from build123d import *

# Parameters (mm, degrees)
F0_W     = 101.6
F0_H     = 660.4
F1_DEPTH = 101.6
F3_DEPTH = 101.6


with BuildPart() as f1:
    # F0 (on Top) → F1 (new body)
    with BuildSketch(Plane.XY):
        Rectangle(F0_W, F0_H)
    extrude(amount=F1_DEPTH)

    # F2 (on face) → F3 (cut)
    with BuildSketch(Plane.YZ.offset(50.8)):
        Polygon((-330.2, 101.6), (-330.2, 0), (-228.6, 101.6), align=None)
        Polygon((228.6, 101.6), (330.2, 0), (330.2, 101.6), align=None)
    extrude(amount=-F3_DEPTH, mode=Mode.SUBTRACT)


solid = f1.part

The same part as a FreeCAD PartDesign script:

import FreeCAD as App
import Part
import Sketcher
Q = App.Units.Quantity


def add_polygon(sketch, points):
    """Adds a closed chain of lines whose ends are joined by coincident constraints."""
    first, n = sketch.GeometryCount, len(points)
    for a, b in zip(points, points[1:] + points[:1]):
        sketch.addGeometry(Part.LineSegment(App.Vector(*a, 0), App.Vector(*b, 0)), False)
    for i in range(n):
        sketch.addConstraint(Sketcher.Constraint("Coincident", first + i, 2, first + (i + 1) % n, 1))

doc = App.newDocument("Part")
body = doc.addObject("PartDesign::Body", "Body")

# Sketch on XY plane
sketch1 = body.newObject("Sketcher::SketchObject", "Sketch")
sketch1.AttachmentSupport = (doc.getObject("XY_Plane"), [""])
sketch1.MapMode = "FlatFace"
add_polygon(sketch1, [(-50.8, 330.2), (-50.8, -330.2), (50.8, -330.2), (50.8, 330.2)])  # lines 0-3
sketch1.addConstraint([
    Sketcher.Constraint("Vertical", 0),
    Sketcher.Constraint("Horizontal", 1),
    Sketcher.Constraint("Vertical", 2),
    Sketcher.Constraint("Horizontal", 3),
    Sketcher.Constraint("Symmetric", 0, 2, 2, 2, -1, 1),
    Sketcher.Constraint("DistanceX", 1, 1, 1, 2, Q("4 in")),
    Sketcher.Constraint("DistanceY", 0, 2, 0, 1, Q("26 in")),
])
pad1 = body.newObject("PartDesign::Pad", "Pad")
pad1.Profile = sketch1
pad1.Length = Q("4 in")

# Sketch on YZ plane
sketch2 = body.newObject("Sketcher::SketchObject", "Sketch001")
sketch2.AttachmentSupport = (doc.getObject("YZ_Plane"), [""])
sketch2.MapMode = "FlatFace"
sketch2.AttachmentOffset = App.Placement(App.Vector(0, 0, 2 * 25.4), App.Rotation())
add_polygon(sketch2, [(-330.2, 101.6), (-330.2, 0), (-228.6, 101.6)])  # lines 0-2
add_polygon(sketch2, [(228.6, 101.6), (330.2, 0), (330.2, 101.6)])  # lines 3-5
sketch2.addConstraint([
    Sketcher.Constraint("Vertical", 0),
    Sketcher.Constraint("Horizontal", 2),
    Sketcher.Constraint("Vertical", 4),
    Sketcher.Constraint("Horizontal", 5),
    Sketcher.Constraint("Symmetric", 0, 2, 3, 2, -1, 1),
    Sketcher.Constraint("Symmetric", 1, 2, 5, 2, -2),
    Sketcher.Constraint("PointOnObject", 0, 2, -1),
    Sketcher.Constraint("Perpendicular", 1, 3),
    Sketcher.Constraint("DistanceX", 2, 2, 2, 1, Q("4 in")),
    Sketcher.Constraint("DistanceX", 0, 2, -1, 1, Q("13 in")),
])
pocket1 = body.newObject("PartDesign::Pocket", "Pocket")
pocket1.Profile = sketch2
pocket1.Length = Q("4 in")

doc.recompute()
